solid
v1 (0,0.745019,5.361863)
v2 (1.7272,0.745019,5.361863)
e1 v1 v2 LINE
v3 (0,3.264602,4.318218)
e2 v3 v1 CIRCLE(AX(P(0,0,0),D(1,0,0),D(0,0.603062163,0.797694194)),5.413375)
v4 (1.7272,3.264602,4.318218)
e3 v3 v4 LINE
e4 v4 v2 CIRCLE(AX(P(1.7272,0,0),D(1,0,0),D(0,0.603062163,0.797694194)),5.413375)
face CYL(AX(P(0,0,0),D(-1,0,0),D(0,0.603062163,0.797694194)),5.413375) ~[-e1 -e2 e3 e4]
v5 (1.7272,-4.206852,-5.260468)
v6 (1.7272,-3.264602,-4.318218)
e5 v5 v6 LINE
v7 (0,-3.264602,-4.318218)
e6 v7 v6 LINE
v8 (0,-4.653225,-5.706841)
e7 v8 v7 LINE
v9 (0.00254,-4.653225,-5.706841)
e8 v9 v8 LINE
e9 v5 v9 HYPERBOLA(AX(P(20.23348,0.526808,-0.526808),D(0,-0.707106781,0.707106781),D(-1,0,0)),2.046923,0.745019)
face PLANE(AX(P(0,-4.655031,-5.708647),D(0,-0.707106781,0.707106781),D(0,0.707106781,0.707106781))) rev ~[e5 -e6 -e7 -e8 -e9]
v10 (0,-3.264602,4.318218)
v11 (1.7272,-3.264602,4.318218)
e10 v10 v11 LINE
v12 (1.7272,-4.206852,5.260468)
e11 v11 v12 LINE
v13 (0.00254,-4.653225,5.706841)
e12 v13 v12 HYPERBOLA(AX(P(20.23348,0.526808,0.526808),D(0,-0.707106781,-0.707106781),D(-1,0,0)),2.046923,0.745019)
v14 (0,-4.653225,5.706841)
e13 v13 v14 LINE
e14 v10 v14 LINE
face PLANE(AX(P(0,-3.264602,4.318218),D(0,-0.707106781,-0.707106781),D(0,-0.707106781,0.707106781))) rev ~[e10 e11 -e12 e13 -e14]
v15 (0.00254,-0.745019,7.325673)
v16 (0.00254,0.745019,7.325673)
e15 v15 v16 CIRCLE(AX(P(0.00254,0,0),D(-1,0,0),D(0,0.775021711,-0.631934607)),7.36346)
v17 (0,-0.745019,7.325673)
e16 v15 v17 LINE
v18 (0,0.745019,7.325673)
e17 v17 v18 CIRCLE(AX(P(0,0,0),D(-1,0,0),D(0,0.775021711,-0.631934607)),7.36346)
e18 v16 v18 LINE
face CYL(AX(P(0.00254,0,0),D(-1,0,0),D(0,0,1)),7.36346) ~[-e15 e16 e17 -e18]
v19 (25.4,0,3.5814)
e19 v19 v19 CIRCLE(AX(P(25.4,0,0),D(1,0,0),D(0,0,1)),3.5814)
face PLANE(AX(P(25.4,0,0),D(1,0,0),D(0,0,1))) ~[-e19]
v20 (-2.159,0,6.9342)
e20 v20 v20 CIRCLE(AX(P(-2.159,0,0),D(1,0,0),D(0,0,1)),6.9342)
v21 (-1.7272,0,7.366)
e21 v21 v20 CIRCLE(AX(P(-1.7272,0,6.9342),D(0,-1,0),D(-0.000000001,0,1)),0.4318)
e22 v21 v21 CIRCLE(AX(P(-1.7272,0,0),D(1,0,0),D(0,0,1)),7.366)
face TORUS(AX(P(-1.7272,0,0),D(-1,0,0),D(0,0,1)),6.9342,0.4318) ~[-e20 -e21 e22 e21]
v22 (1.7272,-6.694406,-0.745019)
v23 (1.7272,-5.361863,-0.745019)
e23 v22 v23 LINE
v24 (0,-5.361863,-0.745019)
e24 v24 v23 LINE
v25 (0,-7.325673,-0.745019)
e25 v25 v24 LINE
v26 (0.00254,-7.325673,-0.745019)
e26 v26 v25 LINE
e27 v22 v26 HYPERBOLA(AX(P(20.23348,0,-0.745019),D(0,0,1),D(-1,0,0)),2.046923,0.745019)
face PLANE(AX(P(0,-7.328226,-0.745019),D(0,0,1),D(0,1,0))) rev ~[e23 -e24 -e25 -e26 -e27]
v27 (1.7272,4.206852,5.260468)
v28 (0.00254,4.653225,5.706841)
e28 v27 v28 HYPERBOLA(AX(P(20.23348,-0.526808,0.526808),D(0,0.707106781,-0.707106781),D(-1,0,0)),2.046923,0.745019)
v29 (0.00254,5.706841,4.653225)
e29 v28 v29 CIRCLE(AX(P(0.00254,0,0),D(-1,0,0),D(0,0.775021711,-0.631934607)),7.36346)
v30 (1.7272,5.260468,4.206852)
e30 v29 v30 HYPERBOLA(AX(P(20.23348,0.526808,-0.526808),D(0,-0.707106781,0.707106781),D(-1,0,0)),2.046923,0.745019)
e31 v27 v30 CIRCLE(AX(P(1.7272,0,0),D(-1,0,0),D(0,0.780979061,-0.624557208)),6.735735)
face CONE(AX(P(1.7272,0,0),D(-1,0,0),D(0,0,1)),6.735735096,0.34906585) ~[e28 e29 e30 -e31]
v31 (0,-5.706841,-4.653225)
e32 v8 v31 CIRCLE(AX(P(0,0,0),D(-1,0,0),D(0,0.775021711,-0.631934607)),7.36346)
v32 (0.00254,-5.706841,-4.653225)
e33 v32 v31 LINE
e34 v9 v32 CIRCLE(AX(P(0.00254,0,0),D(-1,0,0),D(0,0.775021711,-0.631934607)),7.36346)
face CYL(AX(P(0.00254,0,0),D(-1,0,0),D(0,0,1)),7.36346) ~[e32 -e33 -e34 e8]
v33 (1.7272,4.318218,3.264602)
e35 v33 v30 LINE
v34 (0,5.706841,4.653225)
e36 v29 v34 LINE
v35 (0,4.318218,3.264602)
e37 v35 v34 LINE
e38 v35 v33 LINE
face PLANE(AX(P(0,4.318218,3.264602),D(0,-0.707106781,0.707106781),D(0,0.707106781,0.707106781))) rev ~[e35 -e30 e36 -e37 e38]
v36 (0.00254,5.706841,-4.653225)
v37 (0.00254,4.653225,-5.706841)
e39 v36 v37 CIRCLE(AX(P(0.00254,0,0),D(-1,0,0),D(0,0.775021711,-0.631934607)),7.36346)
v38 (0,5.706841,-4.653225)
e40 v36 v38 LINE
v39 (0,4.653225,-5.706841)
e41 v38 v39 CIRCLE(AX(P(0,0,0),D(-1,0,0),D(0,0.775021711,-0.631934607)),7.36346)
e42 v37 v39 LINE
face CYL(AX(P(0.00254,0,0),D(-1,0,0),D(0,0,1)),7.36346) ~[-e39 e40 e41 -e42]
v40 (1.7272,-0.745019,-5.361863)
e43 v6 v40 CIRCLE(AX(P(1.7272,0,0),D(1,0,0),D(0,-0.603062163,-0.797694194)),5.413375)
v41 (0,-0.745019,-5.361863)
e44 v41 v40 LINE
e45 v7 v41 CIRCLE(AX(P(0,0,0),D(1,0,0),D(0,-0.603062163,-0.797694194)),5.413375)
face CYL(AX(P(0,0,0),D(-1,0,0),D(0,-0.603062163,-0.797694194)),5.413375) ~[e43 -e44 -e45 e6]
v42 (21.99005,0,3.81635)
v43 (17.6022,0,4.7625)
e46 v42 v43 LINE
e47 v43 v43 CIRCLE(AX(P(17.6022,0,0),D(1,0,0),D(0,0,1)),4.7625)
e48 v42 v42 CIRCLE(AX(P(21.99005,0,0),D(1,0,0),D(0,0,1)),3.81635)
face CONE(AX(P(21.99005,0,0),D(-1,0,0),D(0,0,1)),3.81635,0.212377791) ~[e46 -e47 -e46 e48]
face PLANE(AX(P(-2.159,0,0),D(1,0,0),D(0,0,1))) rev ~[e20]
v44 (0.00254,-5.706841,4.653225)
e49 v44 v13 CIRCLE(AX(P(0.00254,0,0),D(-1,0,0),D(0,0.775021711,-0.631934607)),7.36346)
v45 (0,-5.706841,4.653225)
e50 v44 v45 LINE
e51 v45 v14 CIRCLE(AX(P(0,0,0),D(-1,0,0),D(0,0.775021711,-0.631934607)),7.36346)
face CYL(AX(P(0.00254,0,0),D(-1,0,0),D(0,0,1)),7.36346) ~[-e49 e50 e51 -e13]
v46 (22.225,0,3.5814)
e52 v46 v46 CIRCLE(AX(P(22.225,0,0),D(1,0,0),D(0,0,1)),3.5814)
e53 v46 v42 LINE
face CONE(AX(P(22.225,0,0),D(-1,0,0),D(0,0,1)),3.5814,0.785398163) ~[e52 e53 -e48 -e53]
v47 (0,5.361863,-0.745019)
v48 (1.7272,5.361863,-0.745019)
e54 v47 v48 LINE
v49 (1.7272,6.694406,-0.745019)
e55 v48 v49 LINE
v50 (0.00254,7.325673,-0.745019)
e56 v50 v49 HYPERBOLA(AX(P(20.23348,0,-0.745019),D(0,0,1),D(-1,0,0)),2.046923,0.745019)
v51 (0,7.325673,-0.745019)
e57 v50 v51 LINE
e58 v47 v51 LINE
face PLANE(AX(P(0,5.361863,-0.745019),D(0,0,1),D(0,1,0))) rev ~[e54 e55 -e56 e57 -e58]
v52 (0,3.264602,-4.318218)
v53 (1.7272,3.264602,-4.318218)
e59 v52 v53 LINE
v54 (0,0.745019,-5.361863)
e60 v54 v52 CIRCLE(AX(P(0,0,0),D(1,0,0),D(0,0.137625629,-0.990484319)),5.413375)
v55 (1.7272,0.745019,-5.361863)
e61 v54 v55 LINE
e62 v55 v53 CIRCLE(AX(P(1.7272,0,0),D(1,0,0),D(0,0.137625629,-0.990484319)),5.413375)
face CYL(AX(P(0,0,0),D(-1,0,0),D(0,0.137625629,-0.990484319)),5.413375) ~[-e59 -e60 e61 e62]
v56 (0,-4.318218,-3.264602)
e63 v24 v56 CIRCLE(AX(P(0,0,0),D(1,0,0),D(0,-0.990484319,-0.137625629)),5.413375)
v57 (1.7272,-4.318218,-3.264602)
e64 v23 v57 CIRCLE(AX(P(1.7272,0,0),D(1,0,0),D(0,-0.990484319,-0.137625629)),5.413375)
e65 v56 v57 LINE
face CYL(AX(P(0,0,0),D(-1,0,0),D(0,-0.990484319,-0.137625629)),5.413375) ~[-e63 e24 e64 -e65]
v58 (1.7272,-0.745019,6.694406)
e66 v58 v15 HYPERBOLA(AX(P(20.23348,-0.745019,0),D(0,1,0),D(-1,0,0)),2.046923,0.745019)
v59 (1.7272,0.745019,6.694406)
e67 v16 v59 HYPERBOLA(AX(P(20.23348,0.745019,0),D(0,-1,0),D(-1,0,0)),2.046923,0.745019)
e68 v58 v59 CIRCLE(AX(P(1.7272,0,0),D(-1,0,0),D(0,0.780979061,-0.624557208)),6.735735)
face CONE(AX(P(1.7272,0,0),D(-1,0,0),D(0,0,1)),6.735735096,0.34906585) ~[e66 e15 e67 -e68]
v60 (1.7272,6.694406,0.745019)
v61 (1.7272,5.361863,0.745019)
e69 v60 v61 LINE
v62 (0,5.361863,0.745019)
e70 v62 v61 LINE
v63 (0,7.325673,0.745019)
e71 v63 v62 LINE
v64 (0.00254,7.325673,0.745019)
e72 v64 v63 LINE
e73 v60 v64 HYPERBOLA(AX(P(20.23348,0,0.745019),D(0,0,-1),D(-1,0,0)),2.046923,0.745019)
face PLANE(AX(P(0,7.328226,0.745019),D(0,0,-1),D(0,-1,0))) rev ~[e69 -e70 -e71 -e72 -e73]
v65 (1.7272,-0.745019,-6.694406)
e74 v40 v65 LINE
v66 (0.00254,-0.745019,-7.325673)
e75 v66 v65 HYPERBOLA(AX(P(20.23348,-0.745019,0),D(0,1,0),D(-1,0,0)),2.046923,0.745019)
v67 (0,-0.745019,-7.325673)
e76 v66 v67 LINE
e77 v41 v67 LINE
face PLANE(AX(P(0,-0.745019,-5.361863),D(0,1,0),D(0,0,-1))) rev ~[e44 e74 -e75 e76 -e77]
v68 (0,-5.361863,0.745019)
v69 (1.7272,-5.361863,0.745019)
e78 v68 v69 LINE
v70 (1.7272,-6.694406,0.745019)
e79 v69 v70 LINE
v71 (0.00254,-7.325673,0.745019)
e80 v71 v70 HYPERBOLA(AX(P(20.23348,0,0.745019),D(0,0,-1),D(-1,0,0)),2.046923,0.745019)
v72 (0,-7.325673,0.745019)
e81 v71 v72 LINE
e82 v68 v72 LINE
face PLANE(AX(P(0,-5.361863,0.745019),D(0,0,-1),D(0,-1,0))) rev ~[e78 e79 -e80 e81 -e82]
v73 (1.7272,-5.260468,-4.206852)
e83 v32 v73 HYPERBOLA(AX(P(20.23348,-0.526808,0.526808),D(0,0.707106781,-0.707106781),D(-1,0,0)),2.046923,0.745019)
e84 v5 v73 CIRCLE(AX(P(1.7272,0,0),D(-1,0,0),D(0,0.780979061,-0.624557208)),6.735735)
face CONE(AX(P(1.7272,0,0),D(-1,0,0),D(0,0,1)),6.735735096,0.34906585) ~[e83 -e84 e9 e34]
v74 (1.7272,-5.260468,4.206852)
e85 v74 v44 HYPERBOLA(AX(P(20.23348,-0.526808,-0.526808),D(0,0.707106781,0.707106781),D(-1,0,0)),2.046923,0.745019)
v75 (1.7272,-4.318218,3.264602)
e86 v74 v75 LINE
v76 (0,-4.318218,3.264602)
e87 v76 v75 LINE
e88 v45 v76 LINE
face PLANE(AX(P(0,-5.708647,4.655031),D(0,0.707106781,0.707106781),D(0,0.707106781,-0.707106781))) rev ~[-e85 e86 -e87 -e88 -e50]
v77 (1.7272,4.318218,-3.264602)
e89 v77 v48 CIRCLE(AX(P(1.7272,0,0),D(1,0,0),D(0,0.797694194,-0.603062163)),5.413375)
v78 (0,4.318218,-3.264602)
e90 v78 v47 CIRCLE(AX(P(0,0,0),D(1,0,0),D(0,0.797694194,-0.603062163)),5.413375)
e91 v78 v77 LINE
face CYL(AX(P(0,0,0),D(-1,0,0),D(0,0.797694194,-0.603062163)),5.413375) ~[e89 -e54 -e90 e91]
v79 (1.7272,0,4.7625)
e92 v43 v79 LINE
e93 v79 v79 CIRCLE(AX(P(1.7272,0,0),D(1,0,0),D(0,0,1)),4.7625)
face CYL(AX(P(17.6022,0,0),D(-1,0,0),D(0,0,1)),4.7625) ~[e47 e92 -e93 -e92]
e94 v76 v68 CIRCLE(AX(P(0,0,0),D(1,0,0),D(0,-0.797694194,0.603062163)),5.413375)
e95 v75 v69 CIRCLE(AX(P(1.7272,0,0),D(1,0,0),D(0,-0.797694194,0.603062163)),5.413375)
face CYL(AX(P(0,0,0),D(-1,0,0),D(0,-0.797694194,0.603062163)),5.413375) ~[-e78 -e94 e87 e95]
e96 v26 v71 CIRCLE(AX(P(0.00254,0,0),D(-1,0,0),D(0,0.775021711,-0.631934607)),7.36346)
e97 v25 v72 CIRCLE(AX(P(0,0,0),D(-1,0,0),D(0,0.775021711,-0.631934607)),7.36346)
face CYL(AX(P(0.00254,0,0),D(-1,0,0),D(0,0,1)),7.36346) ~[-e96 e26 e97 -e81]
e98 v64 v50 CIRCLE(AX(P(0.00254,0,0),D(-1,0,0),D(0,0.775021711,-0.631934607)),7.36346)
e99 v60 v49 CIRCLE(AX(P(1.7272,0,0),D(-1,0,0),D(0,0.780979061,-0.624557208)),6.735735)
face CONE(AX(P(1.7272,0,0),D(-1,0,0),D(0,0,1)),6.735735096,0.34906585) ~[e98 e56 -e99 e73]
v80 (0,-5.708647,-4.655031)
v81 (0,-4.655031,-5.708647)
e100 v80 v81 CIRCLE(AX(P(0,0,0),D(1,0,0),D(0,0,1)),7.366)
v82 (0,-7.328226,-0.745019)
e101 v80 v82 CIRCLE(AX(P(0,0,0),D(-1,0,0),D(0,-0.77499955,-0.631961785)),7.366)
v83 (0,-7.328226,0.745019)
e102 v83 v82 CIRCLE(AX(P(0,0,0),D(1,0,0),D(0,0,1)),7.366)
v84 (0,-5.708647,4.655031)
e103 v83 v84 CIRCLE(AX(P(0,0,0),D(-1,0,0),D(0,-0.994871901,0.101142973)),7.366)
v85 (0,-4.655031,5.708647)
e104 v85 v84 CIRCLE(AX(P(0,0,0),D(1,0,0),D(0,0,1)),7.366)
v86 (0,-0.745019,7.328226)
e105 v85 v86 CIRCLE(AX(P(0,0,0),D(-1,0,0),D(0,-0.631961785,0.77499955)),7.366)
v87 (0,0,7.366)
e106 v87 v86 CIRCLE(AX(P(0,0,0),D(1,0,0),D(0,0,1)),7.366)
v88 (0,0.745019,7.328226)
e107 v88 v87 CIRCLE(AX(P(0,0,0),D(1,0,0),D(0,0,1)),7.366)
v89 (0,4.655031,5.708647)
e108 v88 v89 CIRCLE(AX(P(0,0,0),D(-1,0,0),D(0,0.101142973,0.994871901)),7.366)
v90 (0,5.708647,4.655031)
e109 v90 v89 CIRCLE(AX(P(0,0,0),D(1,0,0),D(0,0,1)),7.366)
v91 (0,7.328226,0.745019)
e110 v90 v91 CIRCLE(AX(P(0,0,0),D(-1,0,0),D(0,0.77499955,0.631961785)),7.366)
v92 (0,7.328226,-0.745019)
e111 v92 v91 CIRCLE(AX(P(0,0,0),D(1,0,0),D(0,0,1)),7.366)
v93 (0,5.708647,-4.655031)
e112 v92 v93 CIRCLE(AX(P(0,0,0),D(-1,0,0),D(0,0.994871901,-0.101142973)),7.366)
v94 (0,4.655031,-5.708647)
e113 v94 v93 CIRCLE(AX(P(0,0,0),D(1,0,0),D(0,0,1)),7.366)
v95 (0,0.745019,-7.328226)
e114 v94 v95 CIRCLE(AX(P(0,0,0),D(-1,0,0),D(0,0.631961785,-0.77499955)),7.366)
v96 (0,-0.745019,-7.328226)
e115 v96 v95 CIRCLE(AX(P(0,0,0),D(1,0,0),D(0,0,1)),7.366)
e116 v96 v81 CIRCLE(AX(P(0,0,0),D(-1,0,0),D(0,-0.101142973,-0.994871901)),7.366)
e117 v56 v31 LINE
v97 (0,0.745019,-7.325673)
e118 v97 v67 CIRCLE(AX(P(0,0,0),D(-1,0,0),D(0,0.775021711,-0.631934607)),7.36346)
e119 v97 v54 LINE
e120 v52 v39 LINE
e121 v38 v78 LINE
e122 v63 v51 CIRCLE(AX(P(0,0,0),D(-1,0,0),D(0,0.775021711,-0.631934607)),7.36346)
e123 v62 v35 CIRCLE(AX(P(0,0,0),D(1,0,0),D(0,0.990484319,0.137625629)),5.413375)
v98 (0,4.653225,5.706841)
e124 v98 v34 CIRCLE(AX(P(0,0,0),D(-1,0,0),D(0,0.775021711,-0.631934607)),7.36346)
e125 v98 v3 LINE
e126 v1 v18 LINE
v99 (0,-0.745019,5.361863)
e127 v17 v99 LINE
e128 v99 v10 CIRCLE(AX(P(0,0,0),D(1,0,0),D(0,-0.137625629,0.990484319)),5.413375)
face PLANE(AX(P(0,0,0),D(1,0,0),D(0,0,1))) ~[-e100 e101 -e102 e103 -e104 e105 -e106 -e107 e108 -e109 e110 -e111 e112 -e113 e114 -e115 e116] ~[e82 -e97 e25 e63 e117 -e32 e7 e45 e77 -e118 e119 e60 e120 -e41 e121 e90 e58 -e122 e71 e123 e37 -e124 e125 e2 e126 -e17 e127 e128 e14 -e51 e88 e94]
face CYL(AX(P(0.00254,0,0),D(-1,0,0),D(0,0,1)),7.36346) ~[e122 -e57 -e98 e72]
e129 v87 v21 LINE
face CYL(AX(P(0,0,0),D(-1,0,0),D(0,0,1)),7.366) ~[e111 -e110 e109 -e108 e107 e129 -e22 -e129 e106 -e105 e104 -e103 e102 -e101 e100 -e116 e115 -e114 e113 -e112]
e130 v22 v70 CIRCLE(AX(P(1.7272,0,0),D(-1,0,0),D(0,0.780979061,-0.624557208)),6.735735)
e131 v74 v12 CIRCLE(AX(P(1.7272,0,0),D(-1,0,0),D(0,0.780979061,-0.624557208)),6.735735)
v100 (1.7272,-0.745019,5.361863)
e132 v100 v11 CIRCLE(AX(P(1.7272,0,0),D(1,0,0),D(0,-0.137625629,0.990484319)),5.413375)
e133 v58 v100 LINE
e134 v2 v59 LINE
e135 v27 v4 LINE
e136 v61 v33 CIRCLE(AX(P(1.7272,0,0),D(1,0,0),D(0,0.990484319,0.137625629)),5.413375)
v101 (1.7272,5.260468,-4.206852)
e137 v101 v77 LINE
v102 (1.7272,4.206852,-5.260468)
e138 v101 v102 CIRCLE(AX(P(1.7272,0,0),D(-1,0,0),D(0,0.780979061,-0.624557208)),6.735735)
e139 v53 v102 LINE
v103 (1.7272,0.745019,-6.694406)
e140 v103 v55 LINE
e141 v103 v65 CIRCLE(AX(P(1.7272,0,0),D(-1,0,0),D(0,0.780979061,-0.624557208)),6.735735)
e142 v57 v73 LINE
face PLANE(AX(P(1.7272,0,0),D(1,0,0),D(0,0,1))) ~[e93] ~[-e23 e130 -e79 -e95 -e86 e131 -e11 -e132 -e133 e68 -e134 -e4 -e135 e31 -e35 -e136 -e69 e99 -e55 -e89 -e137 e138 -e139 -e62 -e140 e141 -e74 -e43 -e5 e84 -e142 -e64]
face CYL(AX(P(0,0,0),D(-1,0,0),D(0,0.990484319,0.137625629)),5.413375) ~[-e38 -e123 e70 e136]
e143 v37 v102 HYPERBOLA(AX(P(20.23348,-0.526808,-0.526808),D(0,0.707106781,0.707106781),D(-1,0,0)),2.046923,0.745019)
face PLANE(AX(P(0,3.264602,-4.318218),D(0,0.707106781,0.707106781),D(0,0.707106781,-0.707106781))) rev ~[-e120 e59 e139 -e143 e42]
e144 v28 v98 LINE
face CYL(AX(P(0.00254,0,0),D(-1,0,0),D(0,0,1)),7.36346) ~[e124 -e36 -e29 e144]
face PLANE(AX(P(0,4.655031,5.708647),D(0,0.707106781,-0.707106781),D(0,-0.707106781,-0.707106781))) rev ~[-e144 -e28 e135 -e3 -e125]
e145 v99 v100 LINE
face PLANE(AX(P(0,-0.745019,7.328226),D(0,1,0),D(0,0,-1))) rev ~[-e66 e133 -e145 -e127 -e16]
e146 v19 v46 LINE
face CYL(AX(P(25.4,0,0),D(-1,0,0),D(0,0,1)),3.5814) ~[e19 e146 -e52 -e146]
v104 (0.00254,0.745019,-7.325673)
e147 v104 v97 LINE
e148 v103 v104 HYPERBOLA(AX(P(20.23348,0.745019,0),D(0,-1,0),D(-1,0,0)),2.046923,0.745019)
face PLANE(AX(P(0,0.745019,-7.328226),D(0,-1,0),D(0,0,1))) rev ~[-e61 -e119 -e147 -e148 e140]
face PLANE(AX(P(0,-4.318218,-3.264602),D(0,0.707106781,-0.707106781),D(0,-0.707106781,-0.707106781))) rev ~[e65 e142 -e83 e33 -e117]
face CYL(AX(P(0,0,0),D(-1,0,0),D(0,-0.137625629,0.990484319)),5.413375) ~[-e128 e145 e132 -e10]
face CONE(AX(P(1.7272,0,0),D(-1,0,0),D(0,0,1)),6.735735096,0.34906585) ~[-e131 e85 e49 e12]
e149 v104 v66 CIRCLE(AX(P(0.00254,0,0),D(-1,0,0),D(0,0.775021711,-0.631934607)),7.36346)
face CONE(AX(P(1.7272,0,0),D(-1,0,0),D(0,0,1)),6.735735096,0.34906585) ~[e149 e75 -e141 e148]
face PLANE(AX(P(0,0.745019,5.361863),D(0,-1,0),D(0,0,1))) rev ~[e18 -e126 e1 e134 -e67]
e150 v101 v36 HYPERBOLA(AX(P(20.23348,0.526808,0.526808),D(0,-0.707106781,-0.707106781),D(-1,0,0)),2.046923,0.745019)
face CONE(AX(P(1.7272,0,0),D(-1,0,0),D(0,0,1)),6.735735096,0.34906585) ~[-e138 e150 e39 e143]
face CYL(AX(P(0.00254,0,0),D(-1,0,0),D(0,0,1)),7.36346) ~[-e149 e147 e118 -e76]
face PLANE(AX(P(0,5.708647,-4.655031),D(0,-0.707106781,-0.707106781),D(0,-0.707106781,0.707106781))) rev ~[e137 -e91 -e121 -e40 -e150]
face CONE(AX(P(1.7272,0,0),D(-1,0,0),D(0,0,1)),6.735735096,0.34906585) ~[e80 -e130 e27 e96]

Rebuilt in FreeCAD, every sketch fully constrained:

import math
import FreeCAD as App
import Part
import Sketcher
Q = App.Units.Quantity

doc = App.newDocument("Part")
body = doc.addObject("PartDesign::Body", "Body")

# Sketch on XY plane
sketch1 = body.newObject("Sketcher::SketchObject", "Sketch")
sketch1.AttachmentSupport = (doc.getObject("XY_Plane"), [""])
sketch1.MapMode = "FlatFace"
sketch1.addGeometry([
    Part.LineSegment(App.Vector(-2.159, 6.9342, 0), App.Vector(-2.159, 0, 0)),  # 0
    Part.LineSegment(App.Vector(-2.159, 0, 0), App.Vector(25.4, 0, 0)),  # 1
    Part.LineSegment(App.Vector(25.4, 0, 0), App.Vector(25.4, 3.5814, 0)),  # 2
    Part.LineSegment(App.Vector(25.4, 3.5814, 0), App.Vector(22.225, 3.5814, 0)),  # 3
    Part.LineSegment(App.Vector(22.225, 3.5814, 0), App.Vector(21.9901, 3.8163, 0)),  # 4
    Part.LineSegment(App.Vector(21.9901, 3.8163, 0), App.Vector(17.6022, 4.7625, 0)),  # 5
    Part.LineSegment(App.Vector(17.6022, 4.7625, 0), App.Vector(1.7272, 4.7625, 0)),  # 6
    Part.LineSegment(App.Vector(1.7272, 4.7625, 0), App.Vector(1.7272, 6.7357, 0)),  # 7
    Part.LineSegment(App.Vector(1.7272, 6.7357, 0), App.Vector(0.0025, 7.3635, 0)),  # 8
    Part.LineSegment(App.Vector(0.0025, 7.3635, 0), App.Vector(0, 7.3635, 0)),  # 9
    Part.LineSegment(App.Vector(0, 7.3635, 0), App.Vector(0, 7.366, 0)),  # 10
    Part.LineSegment(App.Vector(0, 7.366, 0), App.Vector(-1.7272, 7.366, 0)),  # 11
    Part.ArcOfCircle(Part.Circle(App.Vector(-1.7272, 6.9342, 0), App.Vector(0, 0, 1), 0.4318), math.radians(90), math.radians(180)),  # 12
], False)
sketch1.addConstraint([
    Sketcher.Constraint("Coincident", 0, 2, 1, 1),
    Sketcher.Constraint("Coincident", 1, 2, 2, 1),
    Sketcher.Constraint("Coincident", 2, 2, 3, 1),
    Sketcher.Constraint("Coincident", 3, 2, 4, 1),
    Sketcher.Constraint("Coincident", 4, 2, 5, 1),
    Sketcher.Constraint("Coincident", 5, 2, 6, 1),
    Sketcher.Constraint("Coincident", 6, 2, 7, 1),
    Sketcher.Constraint("Coincident", 7, 2, 8, 1),
    Sketcher.Constraint("Coincident", 8, 2, 9, 1),
    Sketcher.Constraint("Coincident", 9, 2, 10, 1),
    Sketcher.Constraint("Coincident", 10, 2, 11, 1),
    Sketcher.Constraint("Tangent", 11, 2, 12, 1),
    Sketcher.Constraint("Tangent", 12, 2, 0, 1),
    Sketcher.Constraint("Vertical", 0),
    Sketcher.Constraint("Horizontal", 1),
    Sketcher.Constraint("Vertical", 2),
    Sketcher.Constraint("Horizontal", 3),
    Sketcher.Constraint("Horizontal", 6),
    Sketcher.Constraint("Vertical", 7),
    Sketcher.Constraint("Horizontal", 9),
    Sketcher.Constraint("Vertical", 10),
    Sketcher.Constraint("Horizontal", 11),
    Sketcher.Constraint("PointOnObject", 0, 2, -1),
    Sketcher.Constraint("PointOnObject", 9, 2, -2),
    Sketcher.Constraint("Equal", 9, 10),
    Sketcher.Constraint("DistanceX", -1, 1, 1, 2, Q("1 in")),
    Sketcher.Constraint("Angle", 4, Q("135 deg")),
    Sketcher.Constraint("Angle", 8, Q("160 deg")),
    Sketcher.Constraint("Radius", 12, Q("0.017 in")),
    Sketcher.Constraint("DistanceX", 1, 1, 1, 2, Q("1.085 in")),
    Sketcher.Constraint("DistanceX", 3, 2, 3, 1, Q("0.125 in")),
    Sketcher.Constraint("DistanceX", 6, 2, 6, 1, Q("0.625 in")),
    Sketcher.Constraint("DistanceY", 0, 2, 0, 1, Q("0.273 in")),
    Sketcher.Constraint("DistanceY", 2, 1, 2, 2, Q("0.141 in")),
    Sketcher.Constraint("DistanceX", 9, 2, 9, 1, Q("0.0001 in")),
    Sketcher.Constraint("DistanceX", -1, 1, 5, 2, Q("0.693 in")),
    Sketcher.Constraint("DistanceY", -1, 1, 5, 2, Q("0.1875 in")),
    Sketcher.Constraint("Distance", 5, 4.4887),
])
revolution = body.newObject("PartDesign::Revolution", "Revolution")
revolution.Profile = sketch1
revolution.ReferenceAxis = (sketch1, ["H_Axis"])
revolution.Angle = 360

# Sketch on YZ plane
sketch2 = body.newObject("Sketcher::SketchObject", "Sketch001")
sketch2.AttachmentSupport = (doc.getObject("YZ_Plane"), [""])
sketch2.MapMode = "FlatFace"
sketch2.addGeometry([
    Part.LineSegment(App.Vector(7.3, -0.7, 0), App.Vector(5.4, -0.7, 0)),
    Part.ArcOfCircle(Part.Circle(App.Vector(0, 0, 0), App.Vector(0, 0, 1), 5.4), math.radians(-37), math.radians(-8)),
    Part.LineSegment(App.Vector(4.3, -3.3, 0), App.Vector(5.7, -4.7, 0)),
    Part.ArcOfCircle(Part.Circle(App.Vector(0, 0, 0), App.Vector(0, 0, 1), 7.4), math.radians(-39), math.radians(-6)),
], False)
sketch2.addConstraint([
    Sketcher.Constraint("Coincident", 0, 2, 1, 2),
    Sketcher.Constraint("Coincident", 1, 1, 2, 1),
    Sketcher.Constraint("Coincident", 2, 2, 3, 1),
    Sketcher.Constraint("Coincident", 3, 2, 0, 1),
    Sketcher.Constraint("Horizontal", 0),
    Sketcher.Constraint("Coincident", 1, 3, -1, 1),
    Sketcher.Constraint("Coincident", 3, 3, -1, 1),
    Sketcher.Constraint("Radius", 3, Q("0.29 in")),
    Sketcher.Constraint("Angle", 2, Q("-45 deg")),
    Sketcher.Constraint("Radius", 1, 5.413375),
    Sketcher.Constraint("DistanceY", 1, 1, -1, 1, 3.264602),
    Sketcher.Constraint("DistanceX", 0, 2, 0, 1, 1.966363),
])
pocket1 = body.newObject("PartDesign::Pocket", "Pocket")
pocket1.Profile = sketch2
pocket1.Length = Q("0.068 in")
pocket1.Reversed = True
doc.recompute()

polarpattern = body.newObject("PartDesign::PolarPattern", "PolarPattern")
polarpattern.Originals = [pocket1]
polarpattern.Axis = (doc.getObject("X_Axis"), [""])
polarpattern.Angle = 360
polarpattern.Occurrences = 8
body.Tip = polarpattern

doc.recompute()
